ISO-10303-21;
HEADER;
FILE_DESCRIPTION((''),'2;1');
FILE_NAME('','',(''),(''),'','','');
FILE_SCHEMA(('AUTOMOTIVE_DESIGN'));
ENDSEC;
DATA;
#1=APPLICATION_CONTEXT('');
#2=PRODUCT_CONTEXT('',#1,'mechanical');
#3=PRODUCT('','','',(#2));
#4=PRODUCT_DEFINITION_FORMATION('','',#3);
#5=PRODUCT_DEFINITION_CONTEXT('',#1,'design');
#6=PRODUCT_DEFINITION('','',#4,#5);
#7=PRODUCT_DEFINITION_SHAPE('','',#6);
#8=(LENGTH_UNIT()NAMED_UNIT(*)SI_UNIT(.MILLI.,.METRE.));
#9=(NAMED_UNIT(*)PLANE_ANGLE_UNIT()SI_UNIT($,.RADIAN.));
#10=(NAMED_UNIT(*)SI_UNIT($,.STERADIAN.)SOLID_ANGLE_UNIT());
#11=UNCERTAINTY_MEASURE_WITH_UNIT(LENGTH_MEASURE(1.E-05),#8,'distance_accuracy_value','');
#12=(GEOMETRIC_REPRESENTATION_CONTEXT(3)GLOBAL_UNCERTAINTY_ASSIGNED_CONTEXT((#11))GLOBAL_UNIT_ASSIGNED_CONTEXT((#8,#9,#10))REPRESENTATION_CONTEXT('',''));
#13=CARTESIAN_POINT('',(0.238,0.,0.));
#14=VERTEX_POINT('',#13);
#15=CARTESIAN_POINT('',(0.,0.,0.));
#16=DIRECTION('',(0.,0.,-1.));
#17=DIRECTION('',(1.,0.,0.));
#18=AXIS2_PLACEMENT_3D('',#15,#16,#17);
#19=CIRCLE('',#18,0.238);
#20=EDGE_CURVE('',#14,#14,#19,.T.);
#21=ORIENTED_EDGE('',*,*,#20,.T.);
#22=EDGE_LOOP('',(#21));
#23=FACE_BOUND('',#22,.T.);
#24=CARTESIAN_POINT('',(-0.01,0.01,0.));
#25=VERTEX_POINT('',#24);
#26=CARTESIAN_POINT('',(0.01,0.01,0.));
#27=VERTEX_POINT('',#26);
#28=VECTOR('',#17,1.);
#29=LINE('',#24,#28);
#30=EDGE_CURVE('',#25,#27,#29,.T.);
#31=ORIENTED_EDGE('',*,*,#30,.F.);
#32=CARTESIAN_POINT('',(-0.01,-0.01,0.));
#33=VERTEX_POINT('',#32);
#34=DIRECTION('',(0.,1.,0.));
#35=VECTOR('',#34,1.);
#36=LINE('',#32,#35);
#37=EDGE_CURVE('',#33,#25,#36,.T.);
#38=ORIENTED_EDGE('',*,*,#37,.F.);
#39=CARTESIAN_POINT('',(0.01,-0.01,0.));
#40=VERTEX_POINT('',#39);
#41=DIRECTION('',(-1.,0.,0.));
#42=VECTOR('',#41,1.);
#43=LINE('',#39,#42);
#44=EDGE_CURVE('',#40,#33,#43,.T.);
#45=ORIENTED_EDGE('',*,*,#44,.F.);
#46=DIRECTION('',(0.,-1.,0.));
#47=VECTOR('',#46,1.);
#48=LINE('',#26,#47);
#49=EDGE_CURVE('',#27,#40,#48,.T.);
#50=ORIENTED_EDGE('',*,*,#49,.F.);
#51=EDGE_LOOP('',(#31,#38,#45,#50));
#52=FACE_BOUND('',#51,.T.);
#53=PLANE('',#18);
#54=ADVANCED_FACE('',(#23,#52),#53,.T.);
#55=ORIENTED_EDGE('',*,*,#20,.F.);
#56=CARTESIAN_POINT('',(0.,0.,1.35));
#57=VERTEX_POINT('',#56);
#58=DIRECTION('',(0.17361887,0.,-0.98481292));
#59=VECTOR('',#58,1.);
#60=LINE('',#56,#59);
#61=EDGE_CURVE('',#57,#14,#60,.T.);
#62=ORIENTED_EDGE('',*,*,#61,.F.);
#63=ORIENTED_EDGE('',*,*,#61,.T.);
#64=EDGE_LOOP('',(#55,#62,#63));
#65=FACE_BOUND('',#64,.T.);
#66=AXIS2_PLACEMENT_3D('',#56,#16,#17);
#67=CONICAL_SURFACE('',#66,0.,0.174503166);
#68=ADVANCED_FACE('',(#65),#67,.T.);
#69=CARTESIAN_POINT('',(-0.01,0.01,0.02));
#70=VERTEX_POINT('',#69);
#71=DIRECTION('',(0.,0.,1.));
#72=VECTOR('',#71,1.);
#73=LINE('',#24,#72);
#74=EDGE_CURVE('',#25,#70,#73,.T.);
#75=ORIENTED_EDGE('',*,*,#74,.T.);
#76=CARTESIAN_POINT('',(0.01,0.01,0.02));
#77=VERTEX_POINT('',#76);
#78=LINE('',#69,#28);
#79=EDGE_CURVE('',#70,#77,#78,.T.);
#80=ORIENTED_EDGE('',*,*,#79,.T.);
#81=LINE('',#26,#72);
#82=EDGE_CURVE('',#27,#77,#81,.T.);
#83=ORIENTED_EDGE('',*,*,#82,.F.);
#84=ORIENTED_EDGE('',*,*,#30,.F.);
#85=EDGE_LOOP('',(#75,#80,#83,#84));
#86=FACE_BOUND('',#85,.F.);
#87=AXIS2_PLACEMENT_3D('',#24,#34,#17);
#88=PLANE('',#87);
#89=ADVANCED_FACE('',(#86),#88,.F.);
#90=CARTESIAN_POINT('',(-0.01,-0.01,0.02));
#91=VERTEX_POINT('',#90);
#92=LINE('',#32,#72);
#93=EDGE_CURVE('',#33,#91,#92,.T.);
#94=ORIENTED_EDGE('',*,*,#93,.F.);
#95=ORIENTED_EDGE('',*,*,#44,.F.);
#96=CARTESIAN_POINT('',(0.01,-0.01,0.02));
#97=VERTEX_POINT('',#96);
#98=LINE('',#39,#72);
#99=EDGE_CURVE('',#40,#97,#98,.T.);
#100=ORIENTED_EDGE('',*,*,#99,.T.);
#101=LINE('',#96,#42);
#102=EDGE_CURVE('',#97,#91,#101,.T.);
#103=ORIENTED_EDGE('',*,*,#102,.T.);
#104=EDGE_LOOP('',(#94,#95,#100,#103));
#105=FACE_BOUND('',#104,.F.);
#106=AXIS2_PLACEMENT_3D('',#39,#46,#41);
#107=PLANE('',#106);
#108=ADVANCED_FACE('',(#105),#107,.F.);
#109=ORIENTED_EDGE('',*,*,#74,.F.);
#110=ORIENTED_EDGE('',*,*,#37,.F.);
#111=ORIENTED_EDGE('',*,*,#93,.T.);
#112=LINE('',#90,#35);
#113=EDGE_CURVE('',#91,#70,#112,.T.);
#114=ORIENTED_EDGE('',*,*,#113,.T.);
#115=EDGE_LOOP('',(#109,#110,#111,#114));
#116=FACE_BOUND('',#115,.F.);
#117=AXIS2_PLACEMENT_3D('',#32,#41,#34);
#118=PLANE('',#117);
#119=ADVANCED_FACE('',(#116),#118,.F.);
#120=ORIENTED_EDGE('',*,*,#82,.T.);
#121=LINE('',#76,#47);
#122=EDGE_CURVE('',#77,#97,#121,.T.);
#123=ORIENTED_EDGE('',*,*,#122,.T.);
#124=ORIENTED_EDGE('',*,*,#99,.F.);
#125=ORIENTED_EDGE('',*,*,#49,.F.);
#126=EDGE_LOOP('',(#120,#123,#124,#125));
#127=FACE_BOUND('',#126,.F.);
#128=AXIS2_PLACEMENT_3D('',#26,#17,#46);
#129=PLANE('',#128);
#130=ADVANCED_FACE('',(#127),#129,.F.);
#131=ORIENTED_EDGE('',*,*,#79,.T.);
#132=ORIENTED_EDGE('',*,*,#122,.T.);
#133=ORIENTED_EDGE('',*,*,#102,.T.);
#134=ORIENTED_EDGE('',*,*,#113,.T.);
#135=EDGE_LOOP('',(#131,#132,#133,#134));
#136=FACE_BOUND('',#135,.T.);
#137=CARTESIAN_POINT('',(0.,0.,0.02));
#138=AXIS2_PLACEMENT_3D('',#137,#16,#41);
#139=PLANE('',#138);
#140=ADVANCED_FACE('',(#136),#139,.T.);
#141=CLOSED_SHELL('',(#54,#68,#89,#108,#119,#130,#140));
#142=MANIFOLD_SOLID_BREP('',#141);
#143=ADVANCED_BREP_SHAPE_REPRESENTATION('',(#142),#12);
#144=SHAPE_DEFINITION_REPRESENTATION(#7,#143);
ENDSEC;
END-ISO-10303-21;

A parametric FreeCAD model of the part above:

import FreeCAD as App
import Part
import Sketcher
from FreeCAD import Vector
Q = App.Units.Quantity


def add_polygon(sketch, points):
    """Adds a closed chain of lines whose ends are joined by coincident constraints."""
    first, n = sketch.GeometryCount, len(points)
    for a, b in zip(points, points[1:] + points[:1]):
        sketch.addGeometry(Part.LineSegment(App.Vector(*a, 0), App.Vector(*b, 0)), False)
    for i in range(n):
        sketch.addConstraint(Sketcher.Constraint("Coincident", first + i, 2, first + (i + 1) % n, 1))

doc = App.newDocument("Part")
body = doc.addObject("PartDesign::Body", "Body")

sketch1 = body.newObject("Sketcher::SketchObject", "Sketch")
sketch1.AttachmentSupport = (doc.getObject("XZ_Plane"), [""])
sketch1.MapMode = "FlatFace"
add_polygon(sketch1, [(0, 1.35), (0, 0), (0.238, 0)])
sketch1.addConstraint([
    Sketcher.Constraint("Vertical", 0),
    Sketcher.Constraint("Horizontal", 1),
    Sketcher.Constraint("Coincident", 0, 2, -1, 1),
    Sketcher.Constraint("DistanceY", 0, 2, 0, 1, Q("1.35 mm")),
    Sketcher.Constraint("DistanceX", 1, 1, 1, 2, Q("0.238 mm")),
])
revolution = body.newObject("PartDesign::Revolution", "Revolution")
revolution.Profile = sketch1
revolution.ReferenceAxis = (sketch1, ["V_Axis"])
revolution.Angle = 360

sketch2 = body.newObject("Sketcher::SketchObject", "Sketch001")
sketch2.AttachmentSupport = (doc.getObject("XY_Plane"), [""])
sketch2.MapMode = "FlatFace"
add_polygon(sketch2, [(-0.01, -0.01), (-0.01, 0.01), (0.01, 0.01), (0.01, -0.01)])
sketch2.addConstraint([
    Sketcher.Constraint("Vertical", 0),
    Sketcher.Constraint("Horizontal", 1),
    Sketcher.Constraint("Vertical", 2),
    Sketcher.Constraint("Horizontal", 3),
    Sketcher.Constraint("Symmetric", 0, 2, 2, 2, -1, 1),
    Sketcher.Constraint("Equal", 3, 0),
    Sketcher.Constraint("DistanceX", 0, 2, -1, 1, Q("0.01 mm")),
])
pocket1 = body.newObject("PartDesign::Pocket", "Pocket")
pocket1.Profile = sketch2
pocket1.Length = 0.02
pocket1.Reversed = True

doc.recompute()
